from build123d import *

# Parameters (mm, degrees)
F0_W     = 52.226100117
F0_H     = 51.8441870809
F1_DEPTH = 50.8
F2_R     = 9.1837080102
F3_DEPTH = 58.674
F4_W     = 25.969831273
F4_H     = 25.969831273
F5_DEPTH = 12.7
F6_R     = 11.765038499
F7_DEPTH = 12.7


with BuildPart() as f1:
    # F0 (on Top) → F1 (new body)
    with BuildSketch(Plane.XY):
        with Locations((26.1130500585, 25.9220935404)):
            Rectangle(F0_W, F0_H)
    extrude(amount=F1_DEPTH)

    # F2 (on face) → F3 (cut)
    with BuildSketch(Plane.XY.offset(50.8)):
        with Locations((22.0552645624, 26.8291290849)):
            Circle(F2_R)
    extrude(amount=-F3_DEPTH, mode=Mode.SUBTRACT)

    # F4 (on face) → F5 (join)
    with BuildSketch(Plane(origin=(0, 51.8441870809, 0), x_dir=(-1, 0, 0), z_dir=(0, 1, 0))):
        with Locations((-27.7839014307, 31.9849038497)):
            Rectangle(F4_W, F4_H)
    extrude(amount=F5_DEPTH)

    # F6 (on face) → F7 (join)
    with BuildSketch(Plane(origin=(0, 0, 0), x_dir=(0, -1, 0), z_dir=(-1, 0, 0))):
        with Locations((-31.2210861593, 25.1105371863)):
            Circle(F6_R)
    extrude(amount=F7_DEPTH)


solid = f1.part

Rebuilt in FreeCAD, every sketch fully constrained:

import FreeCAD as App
import Part
import Sketcher

V = App.Vector
Q = App.Units.Quantity

doc = App.newDocument("Part")
body = doc.addObject("PartDesign::Body", "Body")

# Sketch on XY plane
sketch1 = doc.addObject("Sketcher::SketchObject", "Sketch")
body.addObject(sketch1)
sketch1.AttachmentSupport = (doc.XY_Plane, [""])
sketch1.MapMode = "FlatFace"
sketch1.addGeometry([
    Part.LineSegment(V(0, 51.844187, 0), V(0, 0, 0)),
    Part.LineSegment(V(0, 0, 0), V(52.2261, 0, 0)),
    Part.LineSegment(V(52.2261, 0, 0), V(52.2261, 51.844187, 0)),
    Part.LineSegment(V(52.2261, 51.844187, 0), V(0, 51.844187, 0)),
], False)
sketch1.addConstraint([
    Sketcher.Constraint("Coincident", 0, 2, 1, 1),
    Sketcher.Constraint("Coincident", 1, 2, 2, 1),
    Sketcher.Constraint("Coincident", 2, 2, 3, 1),
    Sketcher.Constraint("Coincident", 3, 2, 0, 1),
    Sketcher.Constraint("Vertical", 0),
    Sketcher.Constraint("Horizontal", 1),
    Sketcher.Constraint("Vertical", 2),
    Sketcher.Constraint("Horizontal", 3),
    Sketcher.Constraint("Coincident", 0, 2, -1, 1),
    Sketcher.Constraint("DistanceX", 1, 1, 1, 2, Q("52.2261 mm")),
    Sketcher.Constraint("DistanceY", 0, 2, 0, 1, Q("51.844187 mm")),
])
pad1 = doc.addObject("PartDesign::Pad", "Pad")
body.addObject(pad1)
pad1.Profile = sketch1
pad1.Length = Q("2 in")

# Sketch on XY plane
sketch2 = doc.addObject("Sketcher::SketchObject", "Sketch001")
body.addObject(sketch2)
sketch2.AttachmentSupport = (doc.XY_Plane, [""])
sketch2.MapMode = "FlatFace"
sketch2.AttachmentOffset = App.Placement(V(0, 0, 2 * 25.4), App.Rotation())
sketch2.addGeometry(Part.Circle(V(22.055265, 26.829129, 0), V(0, 0, 1), 9.183708), False)
sketch2.addConstraint([
    Sketcher.Constraint("Diameter", 0, Q("18.367416 mm")),
    Sketcher.Constraint("DistanceY", -1, 1, 0, 3, Q("26.829129 mm")),
    Sketcher.Constraint("DistanceX", -1, 1, 0, 3, Q("22.055265 mm")),
])
pocket1 = doc.addObject("PartDesign::Pocket", "Pocket")
body.addObject(pocket1)
pocket1.Profile = sketch2
pocket1.Length = Q("2.31 in")

# Sketch on XZ plane
sketch3 = doc.addObject("Sketcher::SketchObject", "Sketch002")
body.addObject(sketch3)
sketch3.AttachmentSupport = (doc.XZ_Plane, [""])
sketch3.MapMode = "FlatFace"
sketch3.AttachmentOffset = App.Placement(V(0, 0, -51.844187), App.Rotation())
sketch3.addGeometry([
    Part.LineSegment(V(40.768817, 44.969819, 0), V(40.768817, 18.999988, 0)),
    Part.LineSegment(V(40.768817, 18.999988, 0), V(14.798986, 18.999988, 0)),
    Part.LineSegment(V(14.798986, 18.999988, 0), V(14.798986, 44.969819, 0)),
    Part.LineSegment(V(14.798986, 44.969819, 0), V(40.768817, 44.969819, 0)),
], False)
sketch3.addConstraint([
    Sketcher.Constraint("Coincident", 0, 2, 1, 1),
    Sketcher.Constraint("Coincident", 1, 2, 2, 1),
    Sketcher.Constraint("Coincident", 2, 2, 3, 1),
    Sketcher.Constraint("Coincident", 3, 2, 0, 1),
    Sketcher.Constraint("Vertical", 0),
    Sketcher.Constraint("Horizontal", 1),
    Sketcher.Constraint("Vertical", 2),
    Sketcher.Constraint("Horizontal", 3),
    Sketcher.Constraint("Equal", 3, 0),
    Sketcher.Constraint("DistanceX", 1, 2, 1, 1, Q("25.969831 mm")),
    Sketcher.Constraint("DistanceY", -1, 1, 0, 2, Q("18.999988 mm")),
    Sketcher.Constraint("DistanceX", -1, 1, 0, 2, Q("40.768817 mm")),
])
pad2 = doc.addObject("PartDesign::Pad", "Pad001")
body.addObject(pad2)
pad2.Profile = sketch3
pad2.Length = Q("0.5 in")
pad2.Reversed = True

# Sketch on YZ plane
sketch4 = doc.addObject("Sketcher::SketchObject", "Sketch003")
body.addObject(sketch4)
sketch4.AttachmentSupport = (doc.YZ_Plane, [""])
sketch4.MapMode = "FlatFace"
sketch4.addGeometry(Part.Circle(V(31.221086, 25.110537, 0), V(0, 0, 1), 11.765038), False)
sketch4.addConstraint([
    Sketcher.Constraint("Diameter", 0, Q("23.530077 mm")),
    Sketcher.Constraint("DistanceX", -1, 1, 0, 3, Q("31.221086 mm")),
    Sketcher.Constraint("DistanceY", -1, 1, 0, 3, Q("25.110537 mm")),
])
pad3 = doc.addObject("PartDesign::Pad", "Pad002")
body.addObject(pad3)
pad3.Profile = sketch4
pad3.Length = Q("0.5 in")
pad3.Reversed = True

doc.recompute()
